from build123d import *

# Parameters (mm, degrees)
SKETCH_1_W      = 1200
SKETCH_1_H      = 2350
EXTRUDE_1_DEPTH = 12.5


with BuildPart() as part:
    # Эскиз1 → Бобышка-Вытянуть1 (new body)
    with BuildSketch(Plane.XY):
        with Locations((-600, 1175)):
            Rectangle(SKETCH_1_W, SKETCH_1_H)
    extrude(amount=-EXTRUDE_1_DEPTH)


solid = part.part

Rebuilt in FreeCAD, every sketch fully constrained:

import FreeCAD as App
import Part
import Sketcher

doc = App.newDocument("Part")
body = doc.addObject("PartDesign::Body", "Body")

# Sketch on XY plane
sketch1 = body.newObject("Sketcher::SketchObject", "Sketch")
sketch1.AttachmentSupport = (doc.getObject("XY_Plane"), [""])
sketch1.MapMode = "FlatFace"
sketch1.addGeometry([
    Part.LineSegment(App.Vector(-1200, 2350, 0), App.Vector(-1200, 0, 0)),
    Part.LineSegment(App.Vector(-1200, 0, 0), App.Vector(0, 0, 0)),
    Part.LineSegment(App.Vector(0, 0, 0), App.Vector(0, 2350, 0)),
    Part.LineSegment(App.Vector(0, 2350, 0), App.Vector(-1200, 2350, 0)),
], False)
sketch1.addConstraint([
    Sketcher.Constraint("Coincident", 0, 2, 1, 1),
    Sketcher.Constraint("Coincident", 1, 2, 2, 1),
    Sketcher.Constraint("Coincident", 2, 2, 3, 1),
    Sketcher.Constraint("Coincident", 3, 2, 0, 1),
    Sketcher.Constraint("Vertical", 0),
    Sketcher.Constraint("Horizontal", 1),
    Sketcher.Constraint("Vertical", 2),
    Sketcher.Constraint("Horizontal", 3),
    Sketcher.Constraint("Coincident", 1, 2, -1, 1),
    Sketcher.Constraint("DistanceX", 1, 1, 1, 2, 1200.0),
    Sketcher.Constraint("DistanceY", 0, 2, 0, 1, 2350.0),
])
pad1 = body.newObject("PartDesign::Pad", "Pad")
pad1.Profile = sketch1
pad1.Length = 12.5
pad1.Reversed = True

doc.recompute()
